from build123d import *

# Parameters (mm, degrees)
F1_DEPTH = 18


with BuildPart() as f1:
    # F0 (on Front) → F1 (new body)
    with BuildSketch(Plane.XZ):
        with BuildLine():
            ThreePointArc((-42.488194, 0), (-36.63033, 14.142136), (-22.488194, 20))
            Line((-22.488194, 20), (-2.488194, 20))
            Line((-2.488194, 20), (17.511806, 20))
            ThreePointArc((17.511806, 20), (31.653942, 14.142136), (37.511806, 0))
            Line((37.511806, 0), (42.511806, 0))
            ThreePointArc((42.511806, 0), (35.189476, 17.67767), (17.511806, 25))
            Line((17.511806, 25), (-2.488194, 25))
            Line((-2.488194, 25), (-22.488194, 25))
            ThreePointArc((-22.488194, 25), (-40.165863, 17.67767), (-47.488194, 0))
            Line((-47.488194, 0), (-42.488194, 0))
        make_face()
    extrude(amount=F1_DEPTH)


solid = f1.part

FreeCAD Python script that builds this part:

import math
import FreeCAD as App
import Part
import Sketcher
from FreeCAD import Vector

doc = App.newDocument("Part")
params = doc.addObject("Spreadsheet::Sheet", "Params")
for row, (alias, value) in enumerate([
    ("sketch1_radius", "19.999999 mm"),
    ("sketch1_radius2", "24.999998 mm"),
    ("sketch1_width", "40 mm"),
    ("pad1_length", "18 mm"),
], start=1):
    params.set(f"A{row}", alias)
    params.set(f"B{row}", "=" + value)
    params.setAlias(f"B{row}", alias)

body = doc.addObject("PartDesign::Body", "Body")

# Sketch on XZ plane
sketch1 = body.newObject("Sketcher::SketchObject", "Sketch")
sketch1.AttachmentSupport = (doc.getObject("XZ_Plane"), [""])
sketch1.MapMode = "FlatFace"
sketch1.addGeometry(Part.ArcOfCircle(Part.Circle(Vector(-22, 0, 0), Vector(0, 0, 1), 20), math.radians(90), math.radians(180)), False)
sketch1.addGeometry(Part.LineSegment(Vector(-22, 20, 0), Vector(18, 20, 0)), False)
sketch1.addGeometry(Part.ArcOfCircle(Part.Circle(Vector(18, 0, 0), Vector(0, 0, 1), 20), math.radians(0), math.radians(90)), False)
sketch1.addGeometry(Part.LineSegment(Vector(38, 0, 0), Vector(43, 0, 0)), False)
sketch1.addGeometry(Part.ArcOfCircle(Part.Circle(Vector(18, 0, 0), Vector(0, 0, 1), 25), math.radians(0), math.radians(90)), False)
sketch1.addGeometry(Part.LineSegment(Vector(18, 25, 0), Vector(-22, 25, 0)), False)
sketch1.addGeometry(Part.ArcOfCircle(Part.Circle(Vector(-22, 0, 0), Vector(0, 0, 1), 25), math.radians(90), math.radians(180)), False)
sketch1.addGeometry(Part.LineSegment(Vector(-47, 0, 0), Vector(-42, 0, 0)), False)
sketch1.addConstraint(Sketcher.Constraint("Tangent", 0, 1, 1, 1))
sketch1.addConstraint(Sketcher.Constraint("Tangent", 1, 2, 2, 2))
sketch1.addConstraint(Sketcher.Constraint("Coincident", 2, 1, 3, 1))
sketch1.addConstraint(Sketcher.Constraint("Coincident", 3, 2, 4, 1))
sketch1.addConstraint(Sketcher.Constraint("Tangent", 4, 2, 5, 1))
sketch1.addConstraint(Sketcher.Constraint("Tangent", 5, 2, 6, 1))
sketch1.addConstraint(Sketcher.Constraint("Coincident", 6, 2, 7, 1))
sketch1.addConstraint(Sketcher.Constraint("Coincident", 7, 2, 0, 2))
sketch1.addConstraint(Sketcher.Constraint("Horizontal", 1))
sketch1.addConstraint(Sketcher.Constraint("Horizontal", 3))
sketch1.addConstraint(Sketcher.Constraint("Horizontal", 5))
sketch1.addConstraint(Sketcher.Constraint("Horizontal", 7))
sketch1.addConstraint(Sketcher.Constraint("Coincident", 4, 3, 2, 3))
sketch1.addConstraint(Sketcher.Constraint("Coincident", 6, 3, 0, 3))
sketch1.addConstraint(Sketcher.Constraint("Equal", 0, 2))
sketch1.addConstraint(Sketcher.Constraint("PointOnObject", 0, 3, -1))
sketch1.addConstraint(Sketcher.Constraint("PointOnObject", 2, 1, -1))
sketch1.addConstraint(Sketcher.Constraint("PointOnObject", 6, 2, -1))
sketch1.addConstraint(Sketcher.Constraint("Radius", 0, 19.999999))
sketch1.addConstraint(Sketcher.Constraint("Radius", 4, 24.999998))
sketch1.addConstraint(Sketcher.Constraint("DistanceX", 1, 1, 1, 2, 40.0))
sketch1.addConstraint(Sketcher.Constraint("DistanceX", 0, 3, -1, 1, 22.488195))
sketch1.setExpression("Constraints[18]", "Params.sketch1_radius")
sketch1.setExpression("Constraints[19]", "Params.sketch1_radius2")
sketch1.setExpression("Constraints[20]", "Params.sketch1_width")
pad1 = body.newObject("PartDesign::Pad", "Pad")
pad1.Profile = sketch1
pad1.setExpression("Length", "Params.pad1_length")

doc.recompute()
